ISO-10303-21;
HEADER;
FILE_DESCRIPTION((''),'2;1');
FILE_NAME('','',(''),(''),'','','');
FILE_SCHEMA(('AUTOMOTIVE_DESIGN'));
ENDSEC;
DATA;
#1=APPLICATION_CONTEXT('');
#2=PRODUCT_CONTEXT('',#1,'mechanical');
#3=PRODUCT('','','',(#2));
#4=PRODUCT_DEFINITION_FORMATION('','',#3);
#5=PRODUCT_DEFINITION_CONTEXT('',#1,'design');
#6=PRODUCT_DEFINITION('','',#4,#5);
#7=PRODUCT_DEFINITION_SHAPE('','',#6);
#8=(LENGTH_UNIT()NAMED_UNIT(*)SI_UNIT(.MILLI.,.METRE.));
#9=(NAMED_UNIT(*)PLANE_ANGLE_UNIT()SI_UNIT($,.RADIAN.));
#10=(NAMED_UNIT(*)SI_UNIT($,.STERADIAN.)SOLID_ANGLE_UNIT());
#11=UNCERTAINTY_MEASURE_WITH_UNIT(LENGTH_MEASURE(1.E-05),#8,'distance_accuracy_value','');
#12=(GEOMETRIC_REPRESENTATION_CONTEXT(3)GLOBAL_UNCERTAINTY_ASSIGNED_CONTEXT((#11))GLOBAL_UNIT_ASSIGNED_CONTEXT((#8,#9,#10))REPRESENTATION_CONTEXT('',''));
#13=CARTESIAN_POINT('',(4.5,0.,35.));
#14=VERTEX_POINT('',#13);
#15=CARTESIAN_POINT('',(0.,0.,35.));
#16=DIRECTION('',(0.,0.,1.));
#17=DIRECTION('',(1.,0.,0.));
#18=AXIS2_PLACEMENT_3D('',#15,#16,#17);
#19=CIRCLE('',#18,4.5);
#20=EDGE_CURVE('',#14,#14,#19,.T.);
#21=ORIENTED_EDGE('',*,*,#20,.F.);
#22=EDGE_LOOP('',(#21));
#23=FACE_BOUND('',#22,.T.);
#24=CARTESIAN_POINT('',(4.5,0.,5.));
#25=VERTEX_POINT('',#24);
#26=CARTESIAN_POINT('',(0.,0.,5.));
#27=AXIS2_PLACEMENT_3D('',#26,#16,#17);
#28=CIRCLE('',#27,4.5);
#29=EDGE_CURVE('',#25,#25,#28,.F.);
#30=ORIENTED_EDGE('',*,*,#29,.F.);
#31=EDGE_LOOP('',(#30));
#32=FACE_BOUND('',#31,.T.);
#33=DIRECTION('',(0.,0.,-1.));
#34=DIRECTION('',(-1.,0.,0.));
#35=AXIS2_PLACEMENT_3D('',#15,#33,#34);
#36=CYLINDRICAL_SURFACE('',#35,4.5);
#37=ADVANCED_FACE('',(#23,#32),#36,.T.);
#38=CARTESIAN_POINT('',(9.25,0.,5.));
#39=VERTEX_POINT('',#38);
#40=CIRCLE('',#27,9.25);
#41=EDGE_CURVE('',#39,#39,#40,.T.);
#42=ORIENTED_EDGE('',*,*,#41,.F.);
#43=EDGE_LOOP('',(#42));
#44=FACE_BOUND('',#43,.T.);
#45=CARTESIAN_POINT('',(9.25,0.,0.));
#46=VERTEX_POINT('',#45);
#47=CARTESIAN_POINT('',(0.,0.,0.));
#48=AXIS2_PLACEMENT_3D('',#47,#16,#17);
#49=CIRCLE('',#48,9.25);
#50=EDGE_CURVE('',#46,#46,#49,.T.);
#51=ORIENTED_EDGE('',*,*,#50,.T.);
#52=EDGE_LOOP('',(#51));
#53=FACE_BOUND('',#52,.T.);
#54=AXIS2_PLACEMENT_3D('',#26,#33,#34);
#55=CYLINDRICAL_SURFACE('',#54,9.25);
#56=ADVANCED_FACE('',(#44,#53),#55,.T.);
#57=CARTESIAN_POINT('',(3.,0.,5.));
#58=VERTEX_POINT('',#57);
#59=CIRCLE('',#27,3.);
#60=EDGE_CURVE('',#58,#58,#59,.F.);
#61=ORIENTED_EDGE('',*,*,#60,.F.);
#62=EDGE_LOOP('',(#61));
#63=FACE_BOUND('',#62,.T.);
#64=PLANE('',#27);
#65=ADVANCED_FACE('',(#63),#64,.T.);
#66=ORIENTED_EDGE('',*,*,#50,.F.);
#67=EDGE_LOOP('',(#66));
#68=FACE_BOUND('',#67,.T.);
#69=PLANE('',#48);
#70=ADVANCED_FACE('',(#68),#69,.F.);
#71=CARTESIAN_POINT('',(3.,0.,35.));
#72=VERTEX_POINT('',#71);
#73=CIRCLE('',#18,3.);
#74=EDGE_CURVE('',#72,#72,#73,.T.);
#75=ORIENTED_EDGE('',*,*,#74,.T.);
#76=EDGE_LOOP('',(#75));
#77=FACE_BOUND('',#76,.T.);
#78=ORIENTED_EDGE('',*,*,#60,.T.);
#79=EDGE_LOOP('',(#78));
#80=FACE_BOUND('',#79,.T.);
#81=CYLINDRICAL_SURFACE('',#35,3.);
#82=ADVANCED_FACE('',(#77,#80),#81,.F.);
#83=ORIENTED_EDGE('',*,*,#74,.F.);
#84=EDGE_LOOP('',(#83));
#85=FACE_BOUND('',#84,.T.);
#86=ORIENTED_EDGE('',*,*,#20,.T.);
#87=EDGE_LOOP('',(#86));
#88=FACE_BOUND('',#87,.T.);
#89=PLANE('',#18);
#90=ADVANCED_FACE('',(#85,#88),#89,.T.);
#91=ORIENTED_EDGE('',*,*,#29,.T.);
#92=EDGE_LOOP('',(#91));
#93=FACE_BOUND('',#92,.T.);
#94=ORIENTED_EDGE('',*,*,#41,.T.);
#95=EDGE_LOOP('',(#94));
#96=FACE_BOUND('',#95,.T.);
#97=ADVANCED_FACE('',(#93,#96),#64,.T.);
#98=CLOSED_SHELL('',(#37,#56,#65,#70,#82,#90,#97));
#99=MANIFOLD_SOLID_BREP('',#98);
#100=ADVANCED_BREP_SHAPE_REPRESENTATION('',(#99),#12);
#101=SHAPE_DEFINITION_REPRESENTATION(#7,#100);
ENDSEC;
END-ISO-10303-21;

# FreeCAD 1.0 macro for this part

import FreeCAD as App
import Part
import Sketcher
Q = App.Units.Quantity

doc = App.newDocument("Part")
body = doc.addObject("PartDesign::Body", "Body")

# Sketch on XY plane
sketch1 = doc.addObject("Sketcher::SketchObject", "Sketch")
body.addObject(sketch1)
sketch1.AttachmentSupport = (doc.XY_Plane, [""])
sketch1.MapMode = "FlatFace"
sketch1.addGeometry(Part.Circle(App.Vector(0, 0, 0), App.Vector(0, 0, 1), 9.25), False)
sketch1.addConstraint([
    Sketcher.Constraint("Coincident", 0, 3, -1, 1),
    Sketcher.Constraint("Diameter", 0, Q("18.5 mm")),
])
pad1 = doc.addObject("PartDesign::Pad", "Pad")
body.addObject(pad1)
pad1.Profile = sketch1
pad1.Length = 5

# Sketch on XY plane
sketch2 = doc.addObject("Sketcher::SketchObject", "Sketch001")
body.addObject(sketch2)
sketch2.AttachmentSupport = (doc.XY_Plane, [""])
sketch2.MapMode = "FlatFace"
sketch2.addGeometry([
    Part.Circle(App.Vector(0, 0, 0), App.Vector(0, 0, 1), 4.5),
    Part.Circle(App.Vector(0, 0, 0), App.Vector(0, 0, 1), 3),
], False)
sketch2.addConstraint([
    Sketcher.Constraint("Coincident", 0, 3, -1, 1),
    Sketcher.Constraint("Coincident", 1, 3, -1, 1),
    Sketcher.Constraint("Diameter", 0, Q("9 mm")),
    Sketcher.Constraint("Diameter", 1, Q("6 mm")),
])
pad2 = doc.addObject("PartDesign::Pad", "Pad001")
body.addObject(pad2)
pad2.Profile = sketch2
pad2.Length = 35

doc.recompute()
